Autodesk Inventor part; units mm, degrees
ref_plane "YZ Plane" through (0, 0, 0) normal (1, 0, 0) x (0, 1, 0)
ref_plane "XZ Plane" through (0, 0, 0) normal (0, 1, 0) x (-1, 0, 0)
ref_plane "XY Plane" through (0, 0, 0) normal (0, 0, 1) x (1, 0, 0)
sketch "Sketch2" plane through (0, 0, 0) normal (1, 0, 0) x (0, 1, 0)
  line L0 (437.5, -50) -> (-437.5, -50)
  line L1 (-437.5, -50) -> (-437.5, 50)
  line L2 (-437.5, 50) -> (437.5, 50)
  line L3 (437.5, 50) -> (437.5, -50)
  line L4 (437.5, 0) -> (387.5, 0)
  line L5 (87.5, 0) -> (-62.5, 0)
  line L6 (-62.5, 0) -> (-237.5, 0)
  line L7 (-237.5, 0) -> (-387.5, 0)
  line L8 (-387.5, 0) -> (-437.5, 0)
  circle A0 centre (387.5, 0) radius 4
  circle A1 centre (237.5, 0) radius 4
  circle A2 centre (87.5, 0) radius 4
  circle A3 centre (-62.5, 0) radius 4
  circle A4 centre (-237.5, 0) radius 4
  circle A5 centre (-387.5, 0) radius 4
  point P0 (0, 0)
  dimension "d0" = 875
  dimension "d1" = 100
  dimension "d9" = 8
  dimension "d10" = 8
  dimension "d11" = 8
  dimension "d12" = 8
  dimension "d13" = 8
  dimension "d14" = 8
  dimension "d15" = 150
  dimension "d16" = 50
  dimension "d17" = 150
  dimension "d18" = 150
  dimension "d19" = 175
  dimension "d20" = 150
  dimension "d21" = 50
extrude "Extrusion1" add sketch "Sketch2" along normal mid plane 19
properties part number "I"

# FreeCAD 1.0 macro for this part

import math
import FreeCAD as App
import Part
import Sketcher

V = App.Vector


def add_polygon(sketch, points):
    """Adds a closed chain of lines whose ends are joined by coincident constraints."""
    first, n = sketch.GeometryCount, len(points)
    for a, b in zip(points, points[1:] + points[:1]):
        sketch.addGeometry(Part.LineSegment(App.Vector(*a, 0), App.Vector(*b, 0)), False)
    for i in range(n):
        sketch.addConstraint(Sketcher.Constraint("Coincident", first + i, 2, first + (i + 1) % n, 1))

doc = App.newDocument("Part")
params = doc.addObject("Spreadsheet::Sheet", "Params")
for row, (alias, value) in enumerate([
    ("sketch1_diameter", "8 mm"),
    ("sketch1_width", "875 mm"),
    ("sketch1_height", "50 mm"),
    ("pad1_length", "19 mm"),
], start=1):
    params.set(f"A{row}", alias)
    params.set(f"B{row}", "=" + value)
    params.setAlias(f"B{row}", alias)

body = doc.addObject("PartDesign::Body", "Body")

# Sketch on YZ plane
sketch1 = doc.addObject("Sketcher::SketchObject", "Sketch")
body.addObject(sketch1)
sketch1.AttachmentSupport = (doc.YZ_Plane, [""])
sketch1.MapMode = "FlatFace"
add_polygon(sketch1, [(-437.5, -50), (437.5, -50), (437.5, 0), (437.5, 50), (-437.5, 50), (-437.5, 0)])  # lines 0-5
sketch1.addGeometry(Part.ArcOfCircle(Part.Circle(V(-387.5, 0, 0), V(0, 0, 1), 4), math.radians(180), math.radians(360)), False)  # 6
sketch1.addGeometry(Part.ArcOfCircle(Part.Circle(V(-387.5, 0, 0), V(0, 0, 1), 4), math.radians(0), math.radians(180)), False)  # 7
sketch1.addGeometry(Part.ArcOfCircle(Part.Circle(V(-237.5, 0, 0), V(0, 0, 1), 4), math.radians(180), math.radians(360)), False)  # 8
sketch1.addGeometry(Part.ArcOfCircle(Part.Circle(V(-237.5, 0, 0), V(0, 0, 1), 4), math.radians(0), math.radians(180)), False)  # 9
sketch1.addGeometry(Part.ArcOfCircle(Part.Circle(V(-62.5, 0, 0), V(0, 0, 1), 4), math.radians(180), math.radians(360)), False)  # 10
sketch1.addGeometry(Part.ArcOfCircle(Part.Circle(V(-62.5, 0, 0), V(0, 0, 1), 4), math.radians(0), math.radians(180)), False)  # 11
sketch1.addGeometry(Part.Circle(V(87.5, 0, 0), V(0, 0, 1), 4), False)  # 12
sketch1.addGeometry(Part.Circle(V(237.5, 0, 0), V(0, 0, 1), 4), False)  # 13
sketch1.addGeometry(Part.Circle(V(387.5, 0, 0), V(0, 0, 1), 4), False)  # 14
sketch1.addConstraint([
    Sketcher.Constraint("Tangent", 6, 1, 7, 2),
    Sketcher.Constraint("Coincident", 7, 1, 6, 2),
    Sketcher.Constraint("Tangent", 8, 1, 9, 2),
    Sketcher.Constraint("Coincident", 9, 1, 8, 2),
    Sketcher.Constraint("Tangent", 10, 1, 11, 2),
    Sketcher.Constraint("Coincident", 11, 1, 10, 2),
    Sketcher.Constraint("Horizontal", 0),
    Sketcher.Constraint("Vertical", 1),
    Sketcher.Constraint("Vertical", 2),
    Sketcher.Constraint("Horizontal", 3),
    Sketcher.Constraint("Vertical", 4),
    Sketcher.Constraint("Vertical", 5),
    Sketcher.Constraint("Equal", 7, 8),
    Sketcher.Constraint("Equal", 9, 10),
    Sketcher.Constraint("Equal", 11, 12),
    Sketcher.Constraint("Equal", 12, 13),
    Sketcher.Constraint("Equal", 13, 14),
    Sketcher.Constraint("Symmetric", 8, 3, 13, 3, -1, 1),
    Sketcher.Constraint("Symmetric", 6, 3, 14, 3, -1, 1),
    Sketcher.Constraint("Symmetric", 0, 2, 3, 2, -1, 1),
    Sketcher.Constraint("PointOnObject", 6, 3, -1),
    Sketcher.Constraint("PointOnObject", 8, 3, -1),
    Sketcher.Constraint("PointOnObject", 10, 3, -1),
    Sketcher.Constraint("PointOnObject", 12, 3, -1),
    Sketcher.Constraint("PointOnObject", 1, 2, -1),
    Sketcher.Constraint("PointOnObject", 4, 2, -1),
    Sketcher.Constraint("PointOnObject", 6, 1, -1),
    Sketcher.Constraint("PointOnObject", 7, 1, -1),
    Sketcher.Constraint("PointOnObject", 8, 1, -1),
    Sketcher.Constraint("PointOnObject", 9, 1, -1),
    Sketcher.Constraint("PointOnObject", 10, 1, -1),
    Sketcher.Constraint("PointOnObject", 11, 1, -1),
    Sketcher.Constraint("Diameter", 12, 8.0),
    Sketcher.Constraint("DistanceX", 0, 1, 0, 2, 875.0),
    Sketcher.Constraint("DistanceY", 1, 1, 1, 2, 50.0),
    Sketcher.Constraint("DistanceX", 6, 3, 8, 3, 150.0),
    Sketcher.Constraint("DistanceX", 8, 3, 10, 3, 175.0),
    Sketcher.Constraint("DistanceX", 10, 3, 12, 3, 150.0),
    Sketcher.Constraint("DistanceX", 12, 3, 13, 3, 150.0),
])
sketch1.setExpression("Constraints[38]", "Params.sketch1_diameter")
sketch1.setExpression("Constraints[39]", "Params.sketch1_width")
sketch1.setExpression("Constraints[40]", "Params.sketch1_height")
pad1 = doc.addObject("PartDesign::Pad", "Pad")
body.addObject(pad1)
pad1.Profile = sketch1
pad1.setExpression("Length", "Params.pad1_length")
pad1.Midplane = True

doc.recompute()
